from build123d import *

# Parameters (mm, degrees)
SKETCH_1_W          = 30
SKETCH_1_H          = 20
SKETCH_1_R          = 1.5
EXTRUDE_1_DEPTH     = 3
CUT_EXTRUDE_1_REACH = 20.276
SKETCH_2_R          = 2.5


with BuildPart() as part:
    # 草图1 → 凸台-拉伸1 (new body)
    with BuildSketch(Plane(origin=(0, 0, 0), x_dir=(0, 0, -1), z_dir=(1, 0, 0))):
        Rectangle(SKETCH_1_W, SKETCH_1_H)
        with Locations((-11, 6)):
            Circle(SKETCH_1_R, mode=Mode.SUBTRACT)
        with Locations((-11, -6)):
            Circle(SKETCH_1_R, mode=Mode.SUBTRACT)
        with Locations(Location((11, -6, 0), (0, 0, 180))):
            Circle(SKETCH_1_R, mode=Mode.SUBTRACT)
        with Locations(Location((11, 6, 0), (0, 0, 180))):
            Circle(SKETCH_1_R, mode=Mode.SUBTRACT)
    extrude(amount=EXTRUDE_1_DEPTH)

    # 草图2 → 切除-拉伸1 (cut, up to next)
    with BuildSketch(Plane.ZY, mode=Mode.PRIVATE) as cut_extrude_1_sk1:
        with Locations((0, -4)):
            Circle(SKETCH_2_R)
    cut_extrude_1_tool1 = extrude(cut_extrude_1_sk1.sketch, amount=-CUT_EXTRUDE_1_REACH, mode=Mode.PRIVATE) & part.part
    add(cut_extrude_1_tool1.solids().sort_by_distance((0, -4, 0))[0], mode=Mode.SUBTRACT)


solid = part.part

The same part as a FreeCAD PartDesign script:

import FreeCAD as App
import Part
import Sketcher
Q = App.Units.Quantity


def add_polygon(sketch, points):
    """Adds a closed chain of lines whose ends are joined by coincident constraints."""
    first, n = sketch.GeometryCount, len(points)
    for a, b in zip(points, points[1:] + points[:1]):
        sketch.addGeometry(Part.LineSegment(App.Vector(*a, 0), App.Vector(*b, 0)), False)
    for i in range(n):
        sketch.addConstraint(Sketcher.Constraint("Coincident", first + i, 2, first + (i + 1) % n, 1))

doc = App.newDocument("Part")
body = doc.addObject("PartDesign::Body", "Body")

# Sketch on YZ plane
sketch1 = body.newObject("Sketcher::SketchObject", "Sketch")
sketch1.AttachmentSupport = (doc.getObject("YZ_Plane"), [""])
sketch1.MapMode = "FlatFace"
add_polygon(sketch1, [(10, 15), (-10, 15), (-10, -15), (10, -15)])  # lines 0-3
sketch1.addGeometry(Part.Circle(App.Vector(-6, 11, 0), App.Vector(0, 0, 1), 1.5), False)  # 4
sketch1.addGeometry(Part.Circle(App.Vector(-6, -11, 0), App.Vector(0, 0, 1), 1.5), False)  # 5
sketch1.addGeometry(Part.Circle(App.Vector(6, 11, 0), App.Vector(0, 0, 1), 1.5), False)  # 6
sketch1.addGeometry(Part.Circle(App.Vector(6, -11, 0), App.Vector(0, 0, 1), 1.5), False)  # 7
sketch1.addConstraint([
    Sketcher.Constraint("Horizontal", 0),
    Sketcher.Constraint("Vertical", 1),
    Sketcher.Constraint("Horizontal", 2),
    Sketcher.Constraint("Vertical", 3),
    Sketcher.Constraint("Equal", 4, 5),
    Sketcher.Constraint("Equal", 5, 6),
    Sketcher.Constraint("Equal", 6, 7),
    Sketcher.Constraint("Symmetric", 5, 3, 6, 3, -1, 1),
    Sketcher.Constraint("Symmetric", 4, 3, 7, 3, -1, 1),
    Sketcher.Constraint("Symmetric", 0, 2, 2, 2, -1, 1),
    Sketcher.Constraint("Symmetric", 4, 3, 6, 3, -2),
    Sketcher.Constraint("Diameter", 4, Q("3 mm")),
    Sketcher.Constraint("DistanceX", 0, 2, 0, 1, Q("20 mm")),
    Sketcher.Constraint("DistanceY", 1, 2, 1, 1, Q("30 mm")),
    Sketcher.Constraint("DistanceX", 4, 3, -1, 1, Q("6 mm")),
    Sketcher.Constraint("DistanceY", -1, 1, 4, 3, Q("11 mm")),
])
pad1 = body.newObject("PartDesign::Pad", "Pad")
pad1.Profile = sketch1
pad1.Length = 3

# Sketch on YZ plane
sketch2 = body.newObject("Sketcher::SketchObject", "Sketch001")
sketch2.AttachmentSupport = (doc.getObject("YZ_Plane"), [""])
sketch2.MapMode = "FlatFace"
sketch2.addGeometry(Part.Circle(App.Vector(-4, 0, 0), App.Vector(0, 0, 1), 2.5), False)
sketch2.addConstraint([
    Sketcher.Constraint("PointOnObject", 0, 3, -1),
    Sketcher.Constraint("Diameter", 0, Q("5 mm")),
    Sketcher.Constraint("DistanceX", 0, 3, -1, 1, Q("4 mm")),
])
pocket1 = body.newObject("PartDesign::Pocket", "Pocket")
pocket1.Profile = sketch2
pocket1.Type = "UpToFirst"
pocket1.Reversed = True

doc.recompute()
